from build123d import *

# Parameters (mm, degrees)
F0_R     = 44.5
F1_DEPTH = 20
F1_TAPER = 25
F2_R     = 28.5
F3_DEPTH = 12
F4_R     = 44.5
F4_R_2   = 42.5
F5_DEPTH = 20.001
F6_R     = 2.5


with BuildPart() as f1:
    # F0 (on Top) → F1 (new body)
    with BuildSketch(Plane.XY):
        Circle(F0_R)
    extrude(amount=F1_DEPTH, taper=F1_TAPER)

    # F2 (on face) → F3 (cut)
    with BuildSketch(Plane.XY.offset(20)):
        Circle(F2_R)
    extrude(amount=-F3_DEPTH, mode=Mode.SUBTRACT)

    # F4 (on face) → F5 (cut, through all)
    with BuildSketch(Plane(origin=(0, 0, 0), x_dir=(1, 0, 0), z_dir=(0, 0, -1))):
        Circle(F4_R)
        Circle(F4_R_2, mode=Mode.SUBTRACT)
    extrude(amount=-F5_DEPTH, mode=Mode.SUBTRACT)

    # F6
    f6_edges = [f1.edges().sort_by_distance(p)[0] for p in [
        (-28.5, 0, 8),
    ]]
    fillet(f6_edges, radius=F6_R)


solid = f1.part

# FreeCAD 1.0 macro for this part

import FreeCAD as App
import Part
import Sketcher
from FreeCAD import Vector
Q = App.Units.Quantity


def edges_at(feature, points):
    """Names of the edges that pass closest to the given points."""
    edges = feature.Shape.Edges
    near = lambda p: min(range(len(edges)), key=lambda i: edges[i].distToShape(Part.Vertex(*p))[0])
    return sorted({f"Edge{near(p) + 1}" for p in points})

doc = App.newDocument("Part")
body = doc.addObject("PartDesign::Body", "Body")

sketch1 = body.newObject("Sketcher::SketchObject", "Sketch")
sketch1.AttachmentSupport = (doc.getObject("XY_Plane"), [""])
sketch1.MapMode = "FlatFace"
sketch1.addGeometry(Part.Circle(Vector(0, 0, 0), Vector(0, 0, 1), 44), False)
sketch1.addConstraint(Sketcher.Constraint("Coincident", 0, 3, -1, 1))
sketch1.addConstraint(Sketcher.Constraint("Diameter", 0, Q("89 mm")))
pad1 = body.newObject("PartDesign::Pad", "Pad")
pad1.Profile = sketch1
pad1.Length = 20
pad1.TaperAngle = -25

sketch2 = body.newObject("Sketcher::SketchObject", "Sketch001")
sketch2.AttachmentSupport = (doc.getObject("XY_Plane"), [""])
sketch2.MapMode = "FlatFace"
sketch2.AttachmentOffset = App.Placement(Vector(0, 0, 20), App.Rotation())
sketch2.addGeometry(Part.Circle(Vector(0, 0, 0), Vector(0, 0, 1), 28), False)
sketch2.addConstraint(Sketcher.Constraint("Coincident", 0, 3, -1, 1))
sketch2.addConstraint(Sketcher.Constraint("Diameter", 0, Q("57 mm")))
pocket1 = body.newObject("PartDesign::Pocket", "Pocket")
pocket1.Profile = sketch2
pocket1.Length = 12

sketch3 = body.newObject("Sketcher::SketchObject", "Sketch002")
sketch3.AttachmentSupport = (doc.getObject("XY_Plane"), [""])
sketch3.MapMode = "FlatFace"
sketch3.addGeometry(Part.Circle(Vector(0, 0, 0), Vector(0, 0, 1), 44), False)
sketch3.addGeometry(Part.Circle(Vector(0, 0, 0), Vector(0, 0, 1), 42), False)
sketch3.addConstraint(Sketcher.Constraint("Coincident", 0, 3, -1, 1))
sketch3.addConstraint(Sketcher.Constraint("Coincident", 1, 3, -1, 1))
sketch3.addConstraint(Sketcher.Constraint("Diameter", 0, Q("89 mm")))
sketch3.addConstraint(Sketcher.Constraint("Diameter", 1, Q("85 mm")))
pocket2 = body.newObject("PartDesign::Pocket", "Pocket001")
pocket2.Profile = sketch3
pocket2.Type = "ThroughAll"
pocket2.Reversed = True
doc.recompute()

fillet = body.newObject("PartDesign::Fillet", "Fillet")
fillet.Base = (pocket2, edges_at(pocket2, [(-28.5, 0, 8)]))
fillet.Radius = 2.5

doc.recompute()
